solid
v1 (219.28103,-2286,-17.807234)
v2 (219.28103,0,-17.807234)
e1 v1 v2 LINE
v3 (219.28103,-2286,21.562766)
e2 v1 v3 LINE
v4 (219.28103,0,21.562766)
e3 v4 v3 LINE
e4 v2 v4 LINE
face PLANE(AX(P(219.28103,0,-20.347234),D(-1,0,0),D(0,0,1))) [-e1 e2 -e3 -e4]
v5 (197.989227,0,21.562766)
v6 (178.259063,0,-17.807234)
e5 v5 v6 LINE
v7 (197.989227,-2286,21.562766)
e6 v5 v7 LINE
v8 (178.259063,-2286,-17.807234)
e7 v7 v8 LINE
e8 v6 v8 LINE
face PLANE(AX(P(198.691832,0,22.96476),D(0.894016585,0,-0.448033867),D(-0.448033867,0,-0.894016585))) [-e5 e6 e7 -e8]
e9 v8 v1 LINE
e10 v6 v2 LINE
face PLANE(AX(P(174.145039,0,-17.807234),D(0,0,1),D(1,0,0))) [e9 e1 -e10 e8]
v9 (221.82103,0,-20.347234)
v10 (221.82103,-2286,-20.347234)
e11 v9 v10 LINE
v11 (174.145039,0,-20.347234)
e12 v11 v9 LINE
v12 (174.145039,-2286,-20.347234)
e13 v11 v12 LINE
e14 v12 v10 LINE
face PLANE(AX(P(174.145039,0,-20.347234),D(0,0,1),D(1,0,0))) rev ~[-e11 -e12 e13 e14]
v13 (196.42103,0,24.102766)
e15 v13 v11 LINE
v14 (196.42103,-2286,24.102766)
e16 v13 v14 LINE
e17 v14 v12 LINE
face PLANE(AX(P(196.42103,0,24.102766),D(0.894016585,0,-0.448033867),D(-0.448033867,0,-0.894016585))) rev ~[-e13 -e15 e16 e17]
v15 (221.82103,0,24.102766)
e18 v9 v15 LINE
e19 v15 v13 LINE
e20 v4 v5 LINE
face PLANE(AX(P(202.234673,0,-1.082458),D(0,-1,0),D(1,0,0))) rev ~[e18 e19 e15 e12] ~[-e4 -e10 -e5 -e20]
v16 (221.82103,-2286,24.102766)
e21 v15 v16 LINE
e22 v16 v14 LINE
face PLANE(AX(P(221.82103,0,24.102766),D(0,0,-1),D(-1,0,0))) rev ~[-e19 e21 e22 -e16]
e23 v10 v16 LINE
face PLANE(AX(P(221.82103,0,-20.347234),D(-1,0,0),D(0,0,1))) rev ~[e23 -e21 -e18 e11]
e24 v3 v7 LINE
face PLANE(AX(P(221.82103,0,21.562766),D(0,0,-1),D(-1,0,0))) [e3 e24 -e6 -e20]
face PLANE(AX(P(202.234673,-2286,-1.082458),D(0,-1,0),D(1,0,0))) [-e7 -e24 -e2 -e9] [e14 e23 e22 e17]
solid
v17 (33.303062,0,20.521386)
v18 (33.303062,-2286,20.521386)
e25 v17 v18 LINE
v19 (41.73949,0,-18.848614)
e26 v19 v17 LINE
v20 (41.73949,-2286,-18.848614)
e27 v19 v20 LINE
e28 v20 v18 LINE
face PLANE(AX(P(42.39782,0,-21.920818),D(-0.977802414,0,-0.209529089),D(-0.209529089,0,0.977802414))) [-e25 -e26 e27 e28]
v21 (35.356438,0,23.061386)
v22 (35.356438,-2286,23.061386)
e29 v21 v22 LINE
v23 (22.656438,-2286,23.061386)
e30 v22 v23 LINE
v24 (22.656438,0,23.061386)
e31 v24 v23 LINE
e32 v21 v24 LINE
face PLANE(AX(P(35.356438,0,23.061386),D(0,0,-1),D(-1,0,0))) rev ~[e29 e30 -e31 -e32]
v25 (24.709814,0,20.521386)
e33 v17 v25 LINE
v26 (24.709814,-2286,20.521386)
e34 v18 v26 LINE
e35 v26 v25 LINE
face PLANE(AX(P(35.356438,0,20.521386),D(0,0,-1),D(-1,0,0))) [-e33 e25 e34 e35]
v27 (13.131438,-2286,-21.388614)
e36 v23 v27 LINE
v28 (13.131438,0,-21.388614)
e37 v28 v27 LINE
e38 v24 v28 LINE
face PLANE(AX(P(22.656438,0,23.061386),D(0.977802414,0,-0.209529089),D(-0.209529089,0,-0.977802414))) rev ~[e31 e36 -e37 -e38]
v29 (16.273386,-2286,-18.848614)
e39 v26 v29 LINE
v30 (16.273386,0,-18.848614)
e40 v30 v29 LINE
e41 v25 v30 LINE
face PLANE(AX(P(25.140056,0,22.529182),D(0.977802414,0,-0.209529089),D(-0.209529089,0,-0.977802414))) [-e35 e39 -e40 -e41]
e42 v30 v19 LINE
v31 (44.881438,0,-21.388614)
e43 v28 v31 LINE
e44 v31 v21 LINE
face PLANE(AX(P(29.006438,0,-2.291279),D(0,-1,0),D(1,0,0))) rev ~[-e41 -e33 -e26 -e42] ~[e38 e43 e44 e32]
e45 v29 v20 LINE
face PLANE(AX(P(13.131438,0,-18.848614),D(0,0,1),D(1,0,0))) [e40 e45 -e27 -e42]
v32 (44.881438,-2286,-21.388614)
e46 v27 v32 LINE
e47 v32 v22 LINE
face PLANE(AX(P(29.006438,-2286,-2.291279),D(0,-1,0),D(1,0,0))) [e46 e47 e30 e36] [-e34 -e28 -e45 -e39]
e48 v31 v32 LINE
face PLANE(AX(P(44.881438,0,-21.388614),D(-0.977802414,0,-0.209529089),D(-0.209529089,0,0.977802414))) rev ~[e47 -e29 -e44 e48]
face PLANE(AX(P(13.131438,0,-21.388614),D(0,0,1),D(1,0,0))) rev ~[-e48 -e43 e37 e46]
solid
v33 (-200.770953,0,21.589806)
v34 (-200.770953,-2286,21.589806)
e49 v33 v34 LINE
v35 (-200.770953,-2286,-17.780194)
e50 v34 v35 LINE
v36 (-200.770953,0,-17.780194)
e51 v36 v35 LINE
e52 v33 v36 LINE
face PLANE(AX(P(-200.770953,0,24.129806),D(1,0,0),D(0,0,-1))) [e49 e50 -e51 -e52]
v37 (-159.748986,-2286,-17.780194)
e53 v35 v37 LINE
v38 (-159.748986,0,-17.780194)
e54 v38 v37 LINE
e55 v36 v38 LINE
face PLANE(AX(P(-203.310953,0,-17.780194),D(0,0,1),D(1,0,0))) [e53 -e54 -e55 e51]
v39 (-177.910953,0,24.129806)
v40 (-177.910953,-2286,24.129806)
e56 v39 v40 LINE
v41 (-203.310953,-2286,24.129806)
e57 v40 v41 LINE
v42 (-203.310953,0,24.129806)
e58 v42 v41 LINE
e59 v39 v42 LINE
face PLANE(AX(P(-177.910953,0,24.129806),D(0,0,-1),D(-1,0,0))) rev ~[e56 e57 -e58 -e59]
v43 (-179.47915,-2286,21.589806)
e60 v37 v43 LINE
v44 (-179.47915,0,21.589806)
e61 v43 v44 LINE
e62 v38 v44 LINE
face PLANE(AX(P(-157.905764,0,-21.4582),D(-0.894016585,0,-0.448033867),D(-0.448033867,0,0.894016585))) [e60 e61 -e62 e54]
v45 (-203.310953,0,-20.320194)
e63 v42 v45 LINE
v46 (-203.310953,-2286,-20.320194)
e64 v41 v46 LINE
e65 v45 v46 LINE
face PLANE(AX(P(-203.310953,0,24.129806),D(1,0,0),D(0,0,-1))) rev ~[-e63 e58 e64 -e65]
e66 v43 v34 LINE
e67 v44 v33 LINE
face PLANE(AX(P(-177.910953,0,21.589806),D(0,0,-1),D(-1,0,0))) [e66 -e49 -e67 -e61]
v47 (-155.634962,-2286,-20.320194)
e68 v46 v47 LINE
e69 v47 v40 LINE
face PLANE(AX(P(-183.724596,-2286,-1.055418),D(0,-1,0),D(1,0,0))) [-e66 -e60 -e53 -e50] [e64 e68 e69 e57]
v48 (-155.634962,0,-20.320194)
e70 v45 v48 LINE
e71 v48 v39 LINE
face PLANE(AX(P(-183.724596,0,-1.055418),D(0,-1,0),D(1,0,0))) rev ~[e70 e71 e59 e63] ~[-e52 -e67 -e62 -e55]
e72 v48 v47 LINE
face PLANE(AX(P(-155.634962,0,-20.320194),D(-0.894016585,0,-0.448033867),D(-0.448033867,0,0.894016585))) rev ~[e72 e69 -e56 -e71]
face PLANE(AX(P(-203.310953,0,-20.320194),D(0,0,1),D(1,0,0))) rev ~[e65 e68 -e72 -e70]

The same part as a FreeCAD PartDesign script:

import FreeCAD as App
import Part
import Sketcher
from FreeCAD import Vector
Q = App.Units.Quantity


def faces_at(feature, points):
    """Names of the faces that lie closest to the given points."""
    faces = feature.Shape.Faces
    near = lambda p: min(range(len(faces)), key=lambda i: faces[i].distToShape(Part.Vertex(*p))[0])
    return sorted({f"Face{near(p) + 1}" for p in points})

doc = App.newDocument("Part")
body = doc.addObject("PartDesign::Body", "Body")

sketch1 = body.newObject("Sketcher::SketchObject", "Sketch")
sketch1.AttachmentSupport = (doc.getObject("XZ_Plane"), [""])
sketch1.MapMode = "FlatFace"
sketch1.addGeometry([
    Part.LineSegment(Vector(-178, 24, 0), Vector(-203, 24, 0)),
    Part.LineSegment(Vector(-203, 24, 0), Vector(-203, -20, 0)),
    Part.LineSegment(Vector(-203, -20, 0), Vector(-156, -20, 0)),
    Part.LineSegment(Vector(-156, -20, 0), Vector(-178, 24, 0)),
], False)
sketch1.addConstraint([
    Sketcher.Constraint("Coincident", 0, 2, 1, 1),
    Sketcher.Constraint("Coincident", 1, 2, 2, 1),
    Sketcher.Constraint("Coincident", 2, 2, 3, 1),
    Sketcher.Constraint("Coincident", 3, 2, 0, 1),
    Sketcher.Constraint("Horizontal", 0),
    Sketcher.Constraint("Vertical", 1),
    Sketcher.Constraint("Horizontal", 2),
    Sketcher.Constraint("DistanceX", 0, 2, 0, 1, Q("1 in")),
    Sketcher.Constraint("DistanceY", 1, 2, 1, 1, Q("1.75 in")),
    Sketcher.Constraint("DistanceX", 2, 1, 2, 2, 47.675991),
    Sketcher.Constraint("DistanceX", 2, 2, -1, 1, 155.634962),
    Sketcher.Constraint("DistanceY", -1, 1, 0, 2, 24.129806),
])
pad1 = body.newObject("PartDesign::Pad", "Pad")
pad1.Profile = sketch1
pad1.Length = Q("90 in")
doc.recompute()

thickness = body.newObject("PartDesign::Thickness", "Thickness")
thickness.Base = (pad1, faces_at(pad1, [(-179.473, -2286, 1.905), (-179.473, 0, 1.905)]))
thickness.Value = Q("0.1 in")
thickness.Reversed = True
thickness.Join = "Arc"
body2 = doc.addObject("PartDesign::Body", "Body001")

sketch2 = body2.newObject("Sketcher::SketchObject", "Sketch001")
sketch2.AttachmentSupport = (doc.getObject("XZ_Plane001"), [""])
sketch2.MapMode = "FlatFace"
sketch2.addGeometry([
    Part.LineSegment(Vector(23, 23, 0), Vector(13, -21, 0)),
    Part.LineSegment(Vector(13, -21, 0), Vector(45, -21, 0)),
    Part.LineSegment(Vector(45, -21, 0), Vector(35, 23, 0)),
    Part.LineSegment(Vector(35, 23, 0), Vector(23, 23, 0)),
], False)
sketch2.addConstraint([
    Sketcher.Constraint("Coincident", 0, 2, 1, 1),
    Sketcher.Constraint("Coincident", 1, 2, 2, 1),
    Sketcher.Constraint("Coincident", 2, 2, 3, 1),
    Sketcher.Constraint("Coincident", 3, 2, 0, 1),
    Sketcher.Constraint("Horizontal", 1),
    Sketcher.Constraint("Horizontal", 3),
    Sketcher.Constraint("Equal", 0, 2),
    Sketcher.Constraint("DistanceX", 3, 2, 3, 1, Q("0.5 in")),
    Sketcher.Constraint("DistanceX", 1, 1, 1, 2, Q("1.25 in")),
    Sketcher.Constraint("DistanceY", 1, 2, 2, 2, Q("1.75 in")),
    Sketcher.Constraint("DistanceX", -1, 1, 1, 2, 44.881438),
    Sketcher.Constraint("DistanceY", 0, 2, -1, 1, 21.388614),
])
pad2 = body2.newObject("PartDesign::Pad", "Pad001")
pad2.Profile = sketch2
pad2.Length = Q("90 in")
doc.recompute()

thickness2 = body2.newObject("PartDesign::Thickness", "Thickness001")
thickness2.Base = (pad2, faces_at(pad2, [(29.006, 0, 0.836), (29.006, -2286, 0.836)]))
thickness2.Value = Q("0.1 in")
thickness2.Reversed = True
thickness2.Join = "Arc"
body3 = doc.addObject("PartDesign::Body", "Body002")

sketch3 = body3.newObject("Sketcher::SketchObject", "Sketch002")
sketch3.AttachmentSupport = (doc.getObject("XZ_Plane002"), [""])
sketch3.MapMode = "FlatFace"
sketch3.addGeometry([
    Part.LineSegment(Vector(222, -20, 0), Vector(222, 24, 0)),
    Part.LineSegment(Vector(222, 24, 0), Vector(196, 24, 0)),
    Part.LineSegment(Vector(196, 24, 0), Vector(174, -20, 0)),
    Part.LineSegment(Vector(174, -20, 0), Vector(222, -20, 0)),
], False)
sketch3.addConstraint([
    Sketcher.Constraint("Coincident", 0, 2, 1, 1),
    Sketcher.Constraint("Coincident", 1, 2, 2, 1),
    Sketcher.Constraint("Coincident", 2, 2, 3, 1),
    Sketcher.Constraint("Coincident", 3, 2, 0, 1),
    Sketcher.Constraint("Vertical", 0),
    Sketcher.Constraint("Horizontal", 1),
    Sketcher.Constraint("Horizontal", 3),
    Sketcher.Constraint("DistanceX", 1, 2, 1, 1, Q("1 in")),
    Sketcher.Constraint("DistanceY", 0, 1, 0, 2, Q("1.75 in")),
    Sketcher.Constraint("DistanceX", 3, 1, 3, 2, 47.675991),
    Sketcher.Constraint("DistanceX", -1, 1, 0, 2, 221.82103),
    Sketcher.Constraint("DistanceY", -1, 1, 0, 2, 24.102766),
])
pad3 = body3.newObject("PartDesign::Pad", "Pad002")
pad3.Profile = sketch3
pad3.Length = Q("90 in")
doc.recompute()

thickness3 = body3.newObject("PartDesign::Thickness", "Thickness002")
thickness3.Base = (pad3, faces_at(pad3, [(197.983, -2286, 1.878), (197.983, 0, 1.878)]))
thickness3.Value = Q("0.1 in")
thickness3.Reversed = True
thickness3.Join = "Arc"

doc.recompute()
